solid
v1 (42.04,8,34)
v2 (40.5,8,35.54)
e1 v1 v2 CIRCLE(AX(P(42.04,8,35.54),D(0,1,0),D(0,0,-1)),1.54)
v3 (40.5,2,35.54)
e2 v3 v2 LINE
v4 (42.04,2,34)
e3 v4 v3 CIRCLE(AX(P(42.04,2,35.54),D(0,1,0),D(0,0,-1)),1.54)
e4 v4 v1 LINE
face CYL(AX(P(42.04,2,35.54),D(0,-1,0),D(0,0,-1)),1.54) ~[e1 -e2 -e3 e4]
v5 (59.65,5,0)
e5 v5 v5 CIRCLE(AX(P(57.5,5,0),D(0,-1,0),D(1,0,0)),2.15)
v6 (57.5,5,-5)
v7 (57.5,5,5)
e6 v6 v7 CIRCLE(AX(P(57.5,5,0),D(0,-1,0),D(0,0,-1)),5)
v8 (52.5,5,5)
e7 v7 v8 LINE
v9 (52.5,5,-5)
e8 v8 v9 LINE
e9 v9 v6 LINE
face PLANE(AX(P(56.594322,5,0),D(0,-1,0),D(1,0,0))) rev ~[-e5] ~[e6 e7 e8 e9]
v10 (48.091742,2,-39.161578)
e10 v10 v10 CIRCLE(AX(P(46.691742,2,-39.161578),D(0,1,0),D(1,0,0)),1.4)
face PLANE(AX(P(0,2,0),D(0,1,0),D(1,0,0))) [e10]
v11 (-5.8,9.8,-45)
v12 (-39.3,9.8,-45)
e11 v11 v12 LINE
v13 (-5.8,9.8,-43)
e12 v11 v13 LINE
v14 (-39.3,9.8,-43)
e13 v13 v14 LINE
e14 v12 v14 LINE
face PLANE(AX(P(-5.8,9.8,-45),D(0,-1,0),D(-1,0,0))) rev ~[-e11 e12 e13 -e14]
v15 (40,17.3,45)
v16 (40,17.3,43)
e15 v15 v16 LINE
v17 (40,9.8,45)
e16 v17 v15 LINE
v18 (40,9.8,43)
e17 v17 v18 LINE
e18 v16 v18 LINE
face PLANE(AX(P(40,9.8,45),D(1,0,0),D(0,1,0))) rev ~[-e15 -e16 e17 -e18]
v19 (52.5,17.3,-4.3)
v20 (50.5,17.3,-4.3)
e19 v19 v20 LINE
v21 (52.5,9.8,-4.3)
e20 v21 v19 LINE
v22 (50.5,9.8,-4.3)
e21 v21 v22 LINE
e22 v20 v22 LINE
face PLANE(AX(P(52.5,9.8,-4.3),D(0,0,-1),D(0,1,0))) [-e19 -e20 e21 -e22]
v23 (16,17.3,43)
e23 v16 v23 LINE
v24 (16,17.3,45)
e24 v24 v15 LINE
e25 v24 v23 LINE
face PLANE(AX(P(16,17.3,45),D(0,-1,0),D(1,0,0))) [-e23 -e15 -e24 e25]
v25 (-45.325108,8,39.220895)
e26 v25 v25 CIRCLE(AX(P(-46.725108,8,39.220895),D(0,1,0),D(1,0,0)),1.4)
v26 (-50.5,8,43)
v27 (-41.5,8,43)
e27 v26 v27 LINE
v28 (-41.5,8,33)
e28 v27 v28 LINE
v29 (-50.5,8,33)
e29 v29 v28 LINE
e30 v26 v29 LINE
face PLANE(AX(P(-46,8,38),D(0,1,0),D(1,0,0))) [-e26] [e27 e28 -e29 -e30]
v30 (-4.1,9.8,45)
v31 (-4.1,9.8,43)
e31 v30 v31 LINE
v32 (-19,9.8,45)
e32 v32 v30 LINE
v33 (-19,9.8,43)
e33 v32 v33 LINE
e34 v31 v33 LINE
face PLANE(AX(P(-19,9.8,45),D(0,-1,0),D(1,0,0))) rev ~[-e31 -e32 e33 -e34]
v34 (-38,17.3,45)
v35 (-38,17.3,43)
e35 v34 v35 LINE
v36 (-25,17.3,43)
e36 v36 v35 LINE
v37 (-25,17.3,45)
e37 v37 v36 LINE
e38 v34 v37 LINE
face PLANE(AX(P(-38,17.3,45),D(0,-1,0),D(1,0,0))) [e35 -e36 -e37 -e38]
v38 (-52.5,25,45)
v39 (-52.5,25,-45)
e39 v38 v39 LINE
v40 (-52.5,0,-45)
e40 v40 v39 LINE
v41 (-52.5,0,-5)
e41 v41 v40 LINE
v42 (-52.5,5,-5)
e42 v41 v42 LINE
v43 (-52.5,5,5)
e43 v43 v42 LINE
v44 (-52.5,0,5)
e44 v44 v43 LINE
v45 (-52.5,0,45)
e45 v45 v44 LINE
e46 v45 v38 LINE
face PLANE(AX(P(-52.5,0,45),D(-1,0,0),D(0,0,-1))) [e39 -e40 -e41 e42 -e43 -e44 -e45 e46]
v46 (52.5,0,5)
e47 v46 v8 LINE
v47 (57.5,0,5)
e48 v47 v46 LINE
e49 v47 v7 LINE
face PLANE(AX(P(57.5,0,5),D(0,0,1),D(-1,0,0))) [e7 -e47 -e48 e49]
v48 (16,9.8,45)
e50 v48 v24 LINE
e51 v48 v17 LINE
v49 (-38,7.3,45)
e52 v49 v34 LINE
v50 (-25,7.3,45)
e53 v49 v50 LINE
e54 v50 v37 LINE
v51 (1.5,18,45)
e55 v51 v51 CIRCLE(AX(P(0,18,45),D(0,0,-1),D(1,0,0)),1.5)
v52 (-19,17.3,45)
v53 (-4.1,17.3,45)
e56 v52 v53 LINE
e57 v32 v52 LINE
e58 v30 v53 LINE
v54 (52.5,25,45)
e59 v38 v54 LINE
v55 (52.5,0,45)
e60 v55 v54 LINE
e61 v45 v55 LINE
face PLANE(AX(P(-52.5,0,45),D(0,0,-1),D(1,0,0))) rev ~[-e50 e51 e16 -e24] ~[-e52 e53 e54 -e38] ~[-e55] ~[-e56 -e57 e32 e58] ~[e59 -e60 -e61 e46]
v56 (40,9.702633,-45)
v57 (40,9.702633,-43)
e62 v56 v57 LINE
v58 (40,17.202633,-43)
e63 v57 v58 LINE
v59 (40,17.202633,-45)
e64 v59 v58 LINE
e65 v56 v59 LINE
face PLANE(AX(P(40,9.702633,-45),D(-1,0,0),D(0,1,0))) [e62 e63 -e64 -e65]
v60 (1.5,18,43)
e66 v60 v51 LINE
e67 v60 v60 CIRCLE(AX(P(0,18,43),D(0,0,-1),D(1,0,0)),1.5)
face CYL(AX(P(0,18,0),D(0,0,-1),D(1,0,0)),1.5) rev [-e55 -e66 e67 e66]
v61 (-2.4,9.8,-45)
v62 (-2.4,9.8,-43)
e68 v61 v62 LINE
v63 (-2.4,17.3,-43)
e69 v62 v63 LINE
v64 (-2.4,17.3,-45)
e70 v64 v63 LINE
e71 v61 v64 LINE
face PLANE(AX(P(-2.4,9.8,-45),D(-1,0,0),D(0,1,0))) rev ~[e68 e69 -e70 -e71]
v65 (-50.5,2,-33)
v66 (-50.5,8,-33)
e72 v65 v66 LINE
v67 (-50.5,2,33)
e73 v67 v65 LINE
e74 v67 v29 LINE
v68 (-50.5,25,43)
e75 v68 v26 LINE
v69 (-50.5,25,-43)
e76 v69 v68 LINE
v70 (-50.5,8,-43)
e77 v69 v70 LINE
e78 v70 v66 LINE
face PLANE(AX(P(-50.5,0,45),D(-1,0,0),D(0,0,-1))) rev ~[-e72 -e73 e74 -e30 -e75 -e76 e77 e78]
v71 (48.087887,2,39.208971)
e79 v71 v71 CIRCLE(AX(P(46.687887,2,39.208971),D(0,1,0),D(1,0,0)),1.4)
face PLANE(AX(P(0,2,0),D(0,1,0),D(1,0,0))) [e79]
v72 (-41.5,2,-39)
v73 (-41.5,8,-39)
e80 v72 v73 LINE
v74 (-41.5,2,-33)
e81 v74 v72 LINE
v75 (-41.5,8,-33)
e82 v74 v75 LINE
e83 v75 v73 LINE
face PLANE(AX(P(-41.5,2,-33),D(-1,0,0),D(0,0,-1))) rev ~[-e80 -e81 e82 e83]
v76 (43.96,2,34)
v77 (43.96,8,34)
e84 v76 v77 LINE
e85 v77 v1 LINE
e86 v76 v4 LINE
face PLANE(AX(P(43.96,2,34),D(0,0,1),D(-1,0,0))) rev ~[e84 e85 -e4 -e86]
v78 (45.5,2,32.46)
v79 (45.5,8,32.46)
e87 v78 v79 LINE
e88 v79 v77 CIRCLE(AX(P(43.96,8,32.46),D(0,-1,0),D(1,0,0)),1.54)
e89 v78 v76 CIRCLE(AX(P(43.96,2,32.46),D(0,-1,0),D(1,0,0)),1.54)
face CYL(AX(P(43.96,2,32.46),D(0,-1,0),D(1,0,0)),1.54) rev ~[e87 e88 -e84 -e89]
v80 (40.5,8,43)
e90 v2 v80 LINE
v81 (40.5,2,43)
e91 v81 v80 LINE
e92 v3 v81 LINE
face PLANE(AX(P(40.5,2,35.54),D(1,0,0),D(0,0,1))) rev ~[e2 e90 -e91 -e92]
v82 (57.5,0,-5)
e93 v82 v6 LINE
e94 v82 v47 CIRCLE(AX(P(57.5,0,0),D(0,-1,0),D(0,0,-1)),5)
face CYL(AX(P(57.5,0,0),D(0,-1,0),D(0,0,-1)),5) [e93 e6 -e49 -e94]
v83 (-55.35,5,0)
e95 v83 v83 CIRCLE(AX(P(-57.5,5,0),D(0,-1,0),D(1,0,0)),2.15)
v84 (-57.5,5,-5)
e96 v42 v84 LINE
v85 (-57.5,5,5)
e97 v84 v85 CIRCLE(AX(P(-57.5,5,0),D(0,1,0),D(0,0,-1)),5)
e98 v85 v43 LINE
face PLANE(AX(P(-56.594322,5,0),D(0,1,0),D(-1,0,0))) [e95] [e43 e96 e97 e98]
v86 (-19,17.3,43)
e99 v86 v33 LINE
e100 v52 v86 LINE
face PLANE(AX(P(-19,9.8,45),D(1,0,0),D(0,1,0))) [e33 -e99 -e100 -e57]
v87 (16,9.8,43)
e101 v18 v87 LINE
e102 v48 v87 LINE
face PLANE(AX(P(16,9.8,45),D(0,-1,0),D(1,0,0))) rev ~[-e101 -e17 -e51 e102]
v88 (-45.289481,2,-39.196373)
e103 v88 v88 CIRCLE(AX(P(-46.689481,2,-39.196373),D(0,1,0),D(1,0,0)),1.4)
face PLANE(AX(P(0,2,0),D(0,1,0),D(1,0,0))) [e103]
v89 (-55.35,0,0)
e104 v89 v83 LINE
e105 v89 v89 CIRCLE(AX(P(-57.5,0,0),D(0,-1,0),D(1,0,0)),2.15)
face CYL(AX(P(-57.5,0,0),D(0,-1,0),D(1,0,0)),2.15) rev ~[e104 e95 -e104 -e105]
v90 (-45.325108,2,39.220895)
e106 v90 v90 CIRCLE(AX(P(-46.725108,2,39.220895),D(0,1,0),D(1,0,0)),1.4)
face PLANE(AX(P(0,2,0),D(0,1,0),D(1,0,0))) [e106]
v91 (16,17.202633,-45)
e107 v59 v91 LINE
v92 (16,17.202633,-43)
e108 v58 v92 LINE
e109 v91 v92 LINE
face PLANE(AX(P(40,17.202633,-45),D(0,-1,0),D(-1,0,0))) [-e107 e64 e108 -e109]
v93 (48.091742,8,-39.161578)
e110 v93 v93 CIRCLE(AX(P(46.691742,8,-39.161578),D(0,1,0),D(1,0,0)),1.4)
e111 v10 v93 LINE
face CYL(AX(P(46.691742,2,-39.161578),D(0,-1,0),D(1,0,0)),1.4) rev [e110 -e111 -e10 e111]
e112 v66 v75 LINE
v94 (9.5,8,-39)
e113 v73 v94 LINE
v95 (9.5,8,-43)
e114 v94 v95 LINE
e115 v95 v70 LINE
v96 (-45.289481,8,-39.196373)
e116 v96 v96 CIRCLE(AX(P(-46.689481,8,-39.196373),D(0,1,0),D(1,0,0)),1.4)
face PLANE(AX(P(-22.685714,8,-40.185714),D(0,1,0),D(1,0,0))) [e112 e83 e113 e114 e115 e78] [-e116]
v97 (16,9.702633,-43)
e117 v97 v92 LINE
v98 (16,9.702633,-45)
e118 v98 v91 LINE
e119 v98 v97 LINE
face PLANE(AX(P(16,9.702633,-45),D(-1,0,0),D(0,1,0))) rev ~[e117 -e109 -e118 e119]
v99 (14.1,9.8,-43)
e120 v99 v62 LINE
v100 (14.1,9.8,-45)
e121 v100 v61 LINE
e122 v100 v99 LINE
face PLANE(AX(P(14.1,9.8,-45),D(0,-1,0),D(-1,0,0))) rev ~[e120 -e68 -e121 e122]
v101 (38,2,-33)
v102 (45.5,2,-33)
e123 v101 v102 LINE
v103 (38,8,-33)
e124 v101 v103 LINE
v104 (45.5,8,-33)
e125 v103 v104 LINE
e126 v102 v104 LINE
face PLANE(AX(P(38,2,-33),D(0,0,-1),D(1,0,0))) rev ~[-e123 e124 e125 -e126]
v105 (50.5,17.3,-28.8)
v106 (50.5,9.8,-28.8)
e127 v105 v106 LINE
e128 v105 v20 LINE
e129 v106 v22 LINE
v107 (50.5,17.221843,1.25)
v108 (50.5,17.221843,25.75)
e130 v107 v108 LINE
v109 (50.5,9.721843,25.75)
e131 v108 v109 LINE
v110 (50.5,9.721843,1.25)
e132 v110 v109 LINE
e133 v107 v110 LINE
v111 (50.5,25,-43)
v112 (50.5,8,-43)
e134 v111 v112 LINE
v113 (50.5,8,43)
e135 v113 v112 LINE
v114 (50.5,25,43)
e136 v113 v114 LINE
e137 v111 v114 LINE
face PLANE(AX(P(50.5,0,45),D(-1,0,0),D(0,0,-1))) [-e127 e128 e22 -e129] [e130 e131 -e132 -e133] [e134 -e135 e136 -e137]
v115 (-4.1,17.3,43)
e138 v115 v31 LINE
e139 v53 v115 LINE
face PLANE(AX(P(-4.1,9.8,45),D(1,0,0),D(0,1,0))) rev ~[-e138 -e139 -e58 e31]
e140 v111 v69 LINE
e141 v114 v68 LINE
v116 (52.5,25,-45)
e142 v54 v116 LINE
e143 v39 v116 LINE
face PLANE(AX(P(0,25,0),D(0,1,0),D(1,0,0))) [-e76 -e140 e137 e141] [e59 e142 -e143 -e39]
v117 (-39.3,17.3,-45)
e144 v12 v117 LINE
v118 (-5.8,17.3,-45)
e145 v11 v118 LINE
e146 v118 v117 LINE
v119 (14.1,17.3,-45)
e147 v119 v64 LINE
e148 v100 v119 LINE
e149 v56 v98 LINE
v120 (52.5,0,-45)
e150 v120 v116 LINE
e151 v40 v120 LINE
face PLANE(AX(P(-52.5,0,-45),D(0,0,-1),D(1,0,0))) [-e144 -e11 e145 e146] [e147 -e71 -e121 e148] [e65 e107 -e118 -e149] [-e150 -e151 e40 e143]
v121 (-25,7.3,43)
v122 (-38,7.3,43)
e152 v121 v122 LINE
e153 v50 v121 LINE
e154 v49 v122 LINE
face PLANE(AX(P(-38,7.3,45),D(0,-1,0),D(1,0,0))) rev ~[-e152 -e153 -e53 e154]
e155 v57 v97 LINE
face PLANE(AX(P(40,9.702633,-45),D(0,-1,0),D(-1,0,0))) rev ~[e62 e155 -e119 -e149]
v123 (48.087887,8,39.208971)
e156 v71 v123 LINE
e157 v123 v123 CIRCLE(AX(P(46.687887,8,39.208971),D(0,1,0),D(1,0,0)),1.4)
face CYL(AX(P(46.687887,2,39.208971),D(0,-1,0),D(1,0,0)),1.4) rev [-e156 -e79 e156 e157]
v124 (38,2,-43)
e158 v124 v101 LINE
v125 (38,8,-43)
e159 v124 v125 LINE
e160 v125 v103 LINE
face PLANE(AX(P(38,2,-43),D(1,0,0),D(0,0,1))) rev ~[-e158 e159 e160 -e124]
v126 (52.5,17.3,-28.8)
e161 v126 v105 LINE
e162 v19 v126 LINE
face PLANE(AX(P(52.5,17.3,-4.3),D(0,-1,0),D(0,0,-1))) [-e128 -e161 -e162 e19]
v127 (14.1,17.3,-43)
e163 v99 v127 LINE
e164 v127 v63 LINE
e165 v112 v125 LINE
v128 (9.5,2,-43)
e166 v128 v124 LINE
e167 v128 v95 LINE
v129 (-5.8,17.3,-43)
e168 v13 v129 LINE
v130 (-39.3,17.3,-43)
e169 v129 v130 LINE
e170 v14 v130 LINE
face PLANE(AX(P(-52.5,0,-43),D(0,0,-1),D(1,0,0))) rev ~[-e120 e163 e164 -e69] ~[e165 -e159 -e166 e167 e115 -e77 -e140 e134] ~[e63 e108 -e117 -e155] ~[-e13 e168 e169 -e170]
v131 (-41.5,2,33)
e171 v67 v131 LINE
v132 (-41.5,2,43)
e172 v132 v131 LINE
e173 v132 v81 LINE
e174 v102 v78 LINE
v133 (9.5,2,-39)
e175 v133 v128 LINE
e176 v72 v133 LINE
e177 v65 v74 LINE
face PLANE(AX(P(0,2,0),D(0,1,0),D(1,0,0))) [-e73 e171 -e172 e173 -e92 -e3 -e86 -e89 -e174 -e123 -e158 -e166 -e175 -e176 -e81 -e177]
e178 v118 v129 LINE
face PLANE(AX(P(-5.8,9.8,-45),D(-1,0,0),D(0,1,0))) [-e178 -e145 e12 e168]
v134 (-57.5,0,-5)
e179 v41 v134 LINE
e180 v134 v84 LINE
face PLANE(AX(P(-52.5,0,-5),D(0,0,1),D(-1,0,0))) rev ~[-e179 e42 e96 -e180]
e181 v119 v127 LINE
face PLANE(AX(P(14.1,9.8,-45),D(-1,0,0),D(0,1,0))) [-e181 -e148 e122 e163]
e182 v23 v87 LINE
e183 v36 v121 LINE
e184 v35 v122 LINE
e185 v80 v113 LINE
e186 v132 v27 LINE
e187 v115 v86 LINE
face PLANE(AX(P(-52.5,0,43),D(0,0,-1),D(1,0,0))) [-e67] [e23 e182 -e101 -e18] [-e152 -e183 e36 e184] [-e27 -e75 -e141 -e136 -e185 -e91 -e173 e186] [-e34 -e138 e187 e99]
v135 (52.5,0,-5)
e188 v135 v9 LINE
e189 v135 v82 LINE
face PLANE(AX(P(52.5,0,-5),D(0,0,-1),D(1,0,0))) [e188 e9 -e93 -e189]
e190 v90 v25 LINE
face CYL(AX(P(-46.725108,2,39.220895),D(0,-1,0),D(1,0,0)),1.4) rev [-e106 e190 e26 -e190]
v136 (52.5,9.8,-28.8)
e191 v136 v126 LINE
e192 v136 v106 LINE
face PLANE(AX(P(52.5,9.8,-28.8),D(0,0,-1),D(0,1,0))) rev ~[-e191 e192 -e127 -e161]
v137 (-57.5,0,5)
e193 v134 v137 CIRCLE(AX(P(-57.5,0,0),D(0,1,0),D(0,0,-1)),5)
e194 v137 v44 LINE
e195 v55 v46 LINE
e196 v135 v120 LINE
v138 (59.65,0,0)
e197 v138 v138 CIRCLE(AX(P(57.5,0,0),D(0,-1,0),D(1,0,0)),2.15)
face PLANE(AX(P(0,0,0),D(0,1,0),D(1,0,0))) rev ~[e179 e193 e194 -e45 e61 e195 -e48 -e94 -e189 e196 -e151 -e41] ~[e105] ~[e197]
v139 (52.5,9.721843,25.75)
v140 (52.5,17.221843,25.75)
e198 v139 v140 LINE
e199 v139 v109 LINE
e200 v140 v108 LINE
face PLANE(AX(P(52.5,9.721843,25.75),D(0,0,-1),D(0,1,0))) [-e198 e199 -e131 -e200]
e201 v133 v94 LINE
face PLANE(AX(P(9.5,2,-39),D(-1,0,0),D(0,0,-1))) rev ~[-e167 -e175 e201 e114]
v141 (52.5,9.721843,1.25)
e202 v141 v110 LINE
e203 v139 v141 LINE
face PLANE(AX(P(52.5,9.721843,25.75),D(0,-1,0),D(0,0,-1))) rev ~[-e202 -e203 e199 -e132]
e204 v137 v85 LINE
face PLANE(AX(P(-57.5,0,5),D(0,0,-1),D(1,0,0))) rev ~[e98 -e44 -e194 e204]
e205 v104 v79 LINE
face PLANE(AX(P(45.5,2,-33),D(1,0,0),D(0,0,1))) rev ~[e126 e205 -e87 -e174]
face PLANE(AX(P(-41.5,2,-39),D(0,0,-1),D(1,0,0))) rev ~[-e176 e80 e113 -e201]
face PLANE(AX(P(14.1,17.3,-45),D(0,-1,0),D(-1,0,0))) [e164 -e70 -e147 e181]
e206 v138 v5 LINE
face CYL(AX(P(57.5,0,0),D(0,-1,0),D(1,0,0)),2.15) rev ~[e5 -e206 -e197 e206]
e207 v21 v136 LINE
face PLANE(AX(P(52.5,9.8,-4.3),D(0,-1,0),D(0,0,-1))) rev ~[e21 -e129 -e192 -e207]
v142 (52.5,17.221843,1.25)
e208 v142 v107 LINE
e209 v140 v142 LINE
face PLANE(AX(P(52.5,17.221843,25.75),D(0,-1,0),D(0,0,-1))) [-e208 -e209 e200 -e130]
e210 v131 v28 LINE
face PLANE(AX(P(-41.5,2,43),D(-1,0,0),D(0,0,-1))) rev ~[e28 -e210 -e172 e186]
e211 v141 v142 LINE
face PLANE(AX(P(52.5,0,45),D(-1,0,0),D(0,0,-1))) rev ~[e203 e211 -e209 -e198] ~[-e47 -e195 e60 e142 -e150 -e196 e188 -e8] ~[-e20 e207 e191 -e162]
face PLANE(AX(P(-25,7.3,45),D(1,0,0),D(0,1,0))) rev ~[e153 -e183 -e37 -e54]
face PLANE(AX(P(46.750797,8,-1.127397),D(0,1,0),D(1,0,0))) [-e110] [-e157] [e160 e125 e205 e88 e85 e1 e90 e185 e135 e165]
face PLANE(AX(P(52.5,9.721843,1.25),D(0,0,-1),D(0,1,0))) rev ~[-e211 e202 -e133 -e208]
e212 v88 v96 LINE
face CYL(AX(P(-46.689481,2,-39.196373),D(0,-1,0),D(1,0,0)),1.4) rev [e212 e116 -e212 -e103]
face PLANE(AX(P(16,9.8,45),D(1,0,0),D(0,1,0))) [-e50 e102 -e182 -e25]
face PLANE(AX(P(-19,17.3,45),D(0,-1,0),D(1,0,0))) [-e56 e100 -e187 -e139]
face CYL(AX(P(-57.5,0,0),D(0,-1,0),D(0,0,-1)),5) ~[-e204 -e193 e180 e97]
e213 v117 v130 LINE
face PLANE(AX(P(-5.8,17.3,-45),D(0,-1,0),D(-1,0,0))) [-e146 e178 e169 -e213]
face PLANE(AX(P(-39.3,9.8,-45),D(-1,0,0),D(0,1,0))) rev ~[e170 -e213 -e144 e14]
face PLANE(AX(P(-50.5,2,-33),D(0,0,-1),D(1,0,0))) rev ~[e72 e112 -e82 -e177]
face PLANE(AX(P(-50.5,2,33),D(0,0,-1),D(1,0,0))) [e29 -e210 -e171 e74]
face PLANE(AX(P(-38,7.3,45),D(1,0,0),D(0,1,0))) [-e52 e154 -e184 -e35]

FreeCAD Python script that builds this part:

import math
import FreeCAD as App
import Part
import Sketcher


def faces_at(feature, points):
    """Names of the faces that lie closest to the given points."""
    faces = feature.Shape.Faces
    near = lambda p: min(range(len(faces)), key=lambda i: faces[i].distToShape(Part.Vertex(*p))[0])
    return sorted({f"Face{near(p) + 1}" for p in points})

doc = App.newDocument("Part")
body = doc.addObject("PartDesign::Body", "Body")

sketch1 = doc.addObject("Sketcher::SketchObject", "Sketch")
body.addObject(sketch1)
sketch1.AttachmentSupport = (doc.XZ_Plane, [""])
sketch1.MapMode = "FlatFace"
sketch1.addGeometry([
    Part.LineSegment(App.Vector(-52.5, -45, 0), App.Vector(-52.5, 45, 0)),
    Part.LineSegment(App.Vector(-52.5, 45, 0), App.Vector(52.5, 45, 0)),
    Part.LineSegment(App.Vector(52.5, 45, 0), App.Vector(52.5, -45, 0)),
    Part.LineSegment(App.Vector(52.5, -45, 0), App.Vector(-52.5, -45, 0)),
], False)
sketch1.addConstraint([
    Sketcher.Constraint("Coincident", 0, 2, 1, 1),
    Sketcher.Constraint("Coincident", 1, 2, 2, 1),
    Sketcher.Constraint("Coincident", 2, 2, 3, 1),
    Sketcher.Constraint("Coincident", 3, 2, 0, 1),
    Sketcher.Constraint("Vertical", 0),
    Sketcher.Constraint("Horizontal", 1),
    Sketcher.Constraint("Vertical", 2),
    Sketcher.Constraint("Horizontal", 3),
    Sketcher.Constraint("Symmetric", 0, 2, 2, 2, -1, 1),
    Sketcher.Constraint("DistanceX", 1, 1, 1, 2, 105.0),
    Sketcher.Constraint("DistanceY", 0, 1, 0, 2, 90.0),
])
pad1 = doc.addObject("PartDesign::Pad", "Pad")
body.addObject(pad1)
pad1.Profile = sketch1
pad1.Length = 25
pad1.Reversed = True
doc.recompute()

thickness = doc.addObject("PartDesign::Thickness", "Thickness")
body.addObject(thickness)
thickness.Base = (pad1, faces_at(pad1, [(0, 25, 0)]))
thickness.Value = 2
thickness.Reversed = True
thickness.Join = "Intersection"

sketch2 = doc.addObject("Sketcher::SketchObject", "Sketch001")
body.addObject(sketch2)
sketch2.AttachmentSupport = (doc.XZ_Plane, [""])
sketch2.MapMode = "FlatFace"
sketch2.addGeometry([
    Part.LineSegment(App.Vector(-52.5, 5, 0), App.Vector(-57.5, 5, 0)),
    Part.ArcOfCircle(Part.Circle(App.Vector(-57.5, 0, 0), App.Vector(0, 0, 1), 5), math.radians(90), math.radians(270)),
    Part.LineSegment(App.Vector(-57.5, -5, 0), App.Vector(-52.5, -5, 0)),
    Part.LineSegment(App.Vector(-52.5, -5, 0), App.Vector(-52.5, 5, 0)),
    Part.Circle(App.Vector(-57.5, 0, 0), App.Vector(0, 0, 1), 2.15),
    Part.LineSegment(App.Vector(52.5, -5, 0), App.Vector(57.5, -5, 0)),
    Part.ArcOfCircle(Part.Circle(App.Vector(57.5, 0, 0), App.Vector(0, 0, 1), 5), math.radians(-90), math.radians(90)),
    Part.LineSegment(App.Vector(57.5, 5, 0), App.Vector(52.5, 5, 0)),
    Part.LineSegment(App.Vector(52.5, 5, 0), App.Vector(52.5, -5, 0)),
    Part.Circle(App.Vector(57.5, 0, 0), App.Vector(0, 0, 1), 2.15),
], False)
sketch2.addConstraint([
    Sketcher.Constraint("Tangent", 0, 2, 1, 1),
    Sketcher.Constraint("Tangent", 1, 2, 2, 1),
    Sketcher.Constraint("Coincident", 2, 2, 3, 1),
    Sketcher.Constraint("Coincident", 3, 2, 0, 1),
    Sketcher.Constraint("Tangent", 5, 2, 6, 1),
    Sketcher.Constraint("Tangent", 6, 2, 7, 1),
    Sketcher.Constraint("Coincident", 7, 2, 8, 1),
    Sketcher.Constraint("Coincident", 8, 2, 5, 1),
    Sketcher.Constraint("Horizontal", 0),
    Sketcher.Constraint("Horizontal", 2),
    Sketcher.Constraint("Vertical", 3),
    Sketcher.Constraint("Horizontal", 5),
    Sketcher.Constraint("Horizontal", 7),
    Sketcher.Constraint("Vertical", 8),
    Sketcher.Constraint("Coincident", 4, 3, 1, 3),
    Sketcher.Constraint("Coincident", 9, 3, 6, 3),
    Sketcher.Constraint("Equal", 1, 6),
    Sketcher.Constraint("Equal", 4, 9),
    Sketcher.Constraint("Symmetric", 1, 3, 6, 3, -1, 1),
    Sketcher.Constraint("Symmetric", 3, 2, 7, 2, -2),
    Sketcher.Constraint("Radius", 1, 5.0),
    Sketcher.Constraint("Diameter", 4, 4.3),
    Sketcher.Constraint("DistanceX", 0, 2, 0, 1, 5.0),
    Sketcher.Constraint("DistanceX", 1, 3, 6, 3, 115.0),
])
pad2 = doc.addObject("PartDesign::Pad", "Pad001")
body.addObject(pad2)
pad2.Profile = sketch2
pad2.Length = 5
pad2.Reversed = True

sketch3 = doc.addObject("Sketcher::SketchObject", "Sketch002")
body.addObject(sketch3)
sketch3.AttachmentSupport = (doc.XY_Plane, [""])
sketch3.MapMode = "FlatFace"
sketch3.AttachmentOffset = App.Placement(App.Vector(0, 0, 45), App.Rotation())
sketch3.addGeometry([
    Part.LineSegment(App.Vector(16, 17.3, 0), App.Vector(16, 9.8, 0)),
    Part.LineSegment(App.Vector(16, 9.8, 0), App.Vector(40, 9.8, 0)),
    Part.LineSegment(App.Vector(40, 9.8, 0), App.Vector(40, 17.3, 0)),
    Part.LineSegment(App.Vector(40, 17.3, 0), App.Vector(16, 17.3, 0)),
    Part.LineSegment(App.Vector(-19, 17.3, 0), App.Vector(-19, 9.8, 0)),
    Part.LineSegment(App.Vector(-19, 9.8, 0), App.Vector(-4.1, 9.8, 0)),
    Part.LineSegment(App.Vector(-4.1, 9.8, 0), App.Vector(-4.1, 17.3, 0)),
    Part.LineSegment(App.Vector(-4.1, 17.3, 0), App.Vector(-19, 17.3, 0)),
], False)
sketch3.addConstraint([
    Sketcher.Constraint("Coincident", 0, 2, 1, 1),
    Sketcher.Constraint("Coincident", 1, 2, 2, 1),
    Sketcher.Constraint("Coincident", 2, 2, 3, 1),
    Sketcher.Constraint("Coincident", 3, 2, 0, 1),
    Sketcher.Constraint("Coincident", 4, 2, 5, 1),
    Sketcher.Constraint("Coincident", 5, 2, 6, 1),
    Sketcher.Constraint("Coincident", 6, 2, 7, 1),
    Sketcher.Constraint("Coincident", 7, 2, 4, 1),
    Sketcher.Constraint("Vertical", 0),
    Sketcher.Constraint("Horizontal", 1),
    Sketcher.Constraint("Vertical", 2),
    Sketcher.Constraint("Horizontal", 3),
    Sketcher.Constraint("Vertical", 4),
    Sketcher.Constraint("Horizontal", 5),
    Sketcher.Constraint("Vertical", 6),
    Sketcher.Constraint("Horizontal", 7),
    Sketcher.Constraint("Horizontal", 1, 2, 4, 2),
    Sketcher.Constraint("Horizontal", 3, 2, 6, 2),
    Sketcher.Constraint("DistanceX", 1, 1, 1, 2, 24.0),
    Sketcher.Constraint("DistanceX", 5, 1, 5, 2, 14.9),
    Sketcher.Constraint("DistanceY", 0, 2, 0, 1, 7.5),
    Sketcher.Constraint("DistanceX", -1, 1, 0, 2, 16.0),
    Sketcher.Constraint("DistanceX", 4, 2, -1, 1, 19.0),
    Sketcher.Constraint("DistanceY", -1, 1, 0, 2, 9.8),
])
pocket1 = doc.addObject("PartDesign::Pocket", "Pocket")
body.addObject(pocket1)
pocket1.Profile = sketch3
pocket1.Length = 10

sketch4 = doc.addObject("Sketcher::SketchObject", "Sketch003")
body.addObject(sketch4)
sketch4.AttachmentSupport = (doc.YZ_Plane, [""])
sketch4.MapMode = "FlatFace"
sketch4.AttachmentOffset = App.Placement(App.Vector(0, 0, 52.5), App.Rotation())
sketch4.addGeometry([
    Part.LineSegment(App.Vector(17.3, -4.3, 0), App.Vector(9.8, -4.3, 0)),
    Part.LineSegment(App.Vector(9.8, -4.3, 0), App.Vector(9.8, -28.8, 0)),
    Part.LineSegment(App.Vector(9.8, -28.8, 0), App.Vector(17.3, -28.8, 0)),
    Part.LineSegment(App.Vector(17.3, -28.8, 0), App.Vector(17.3, -4.3, 0)),
    Part.LineSegment(App.Vector(17.221843, 25.75, 0), App.Vector(9.721843, 25.75, 0)),
    Part.LineSegment(App.Vector(9.721843, 25.75, 0), App.Vector(9.721843, 1.25, 0)),
    Part.LineSegment(App.Vector(9.721843, 1.25, 0), App.Vector(17.221843, 1.25, 0)),
    Part.LineSegment(App.Vector(17.221843, 1.25, 0), App.Vector(17.221843, 25.75, 0)),
], False)
sketch4.addConstraint([
    Sketcher.Constraint("Coincident", 0, 2, 1, 1),
    Sketcher.Constraint("Coincident", 1, 2, 2, 1),
    Sketcher.Constraint("Coincident", 2, 2, 3, 1),
    Sketcher.Constraint("Coincident", 3, 2, 0, 1),
    Sketcher.Constraint("Coincident", 4, 2, 5, 1),
    Sketcher.Constraint("Coincident", 5, 2, 6, 1),
    Sketcher.Constraint("Coincident", 6, 2, 7, 1),
    Sketcher.Constraint("Coincident", 7, 2, 4, 1),
    Sketcher.Constraint("Horizontal", 0),
    Sketcher.Constraint("Vertical", 1),
    Sketcher.Constraint("Horizontal", 2),
    Sketcher.Constraint("Vertical", 3),
    Sketcher.Constraint("Horizontal", 4),
    Sketcher.Constraint("Vertical", 5),
    Sketcher.Constraint("Horizontal", 6),
    Sketcher.Constraint("Vertical", 7),
    Sketcher.Constraint("Equal", 2, 4),
    Sketcher.Constraint("Equal", 3, 5),
    Sketcher.Constraint("DistanceX", 0, 2, 0, 1, 7.5),
    Sketcher.Constraint("DistanceY", 1, 2, 1, 1, 24.5),
    Sketcher.Constraint("DistanceX", -1, 1, 0, 2, 9.8),
    Sketcher.Constraint("DistanceY", 0, 2, -1, 1, 4.3),
    Sketcher.Constraint("DistanceY", -1, 1, 4, 2, 25.75),
    Sketcher.Constraint("DistanceX", -1, 1, 4, 2, 9.721843),
])
pocket2 = doc.addObject("PartDesign::Pocket", "Pocket001")
body.addObject(pocket2)
pocket2.Profile = sketch4
pocket2.Length = 10

sketch5 = doc.addObject("Sketcher::SketchObject", "Sketch004")
body.addObject(sketch5)
sketch5.AttachmentSupport = (doc.XY_Plane, [""])
sketch5.MapMode = "FlatFace"
sketch5.AttachmentOffset = App.Placement(App.Vector(0, 0, -45), App.Rotation())
sketch5.addGeometry([
    Part.LineSegment(App.Vector(-5.8, 17.3, 0), App.Vector(-5.8, 9.8, 0)),
    Part.LineSegment(App.Vector(-5.8, 9.8, 0), App.Vector(-39.3, 9.8, 0)),
    Part.LineSegment(App.Vector(-39.3, 9.8, 0), App.Vector(-39.3, 17.3, 0)),
    Part.LineSegment(App.Vector(-39.3, 17.3, 0), App.Vector(-5.8, 17.3, 0)),
    Part.LineSegment(App.Vector(14.1, 17.3, 0), App.Vector(14.1, 9.8, 0)),
    Part.LineSegment(App.Vector(14.1, 9.8, 0), App.Vector(-2.4, 9.8, 0)),
    Part.LineSegment(App.Vector(-2.4, 9.8, 0), App.Vector(-2.4, 17.3, 0)),
    Part.LineSegment(App.Vector(-2.4, 17.3, 0), App.Vector(14.1, 17.3, 0)),
    Part.LineSegment(App.Vector(40, 17.202633, 0), App.Vector(40, 9.702633, 0)),
    Part.LineSegment(App.Vector(40, 9.702633, 0), App.Vector(16, 9.702633, 0)),
    Part.LineSegment(App.Vector(16, 9.702633, 0), App.Vector(16, 17.202633, 0)),
    Part.LineSegment(App.Vector(16, 17.202633, 0), App.Vector(40, 17.202633, 0)),
], False)
sketch5.addConstraint([
    Sketcher.Constraint("Coincident", 0, 2, 1, 1),
    Sketcher.Constraint("Coincident", 1, 2, 2, 1),
    Sketcher.Constraint("Coincident", 2, 2, 3, 1),
    Sketcher.Constraint("Coincident", 3, 2, 0, 1),
    Sketcher.Constraint("Coincident", 4, 2, 5, 1),
    Sketcher.Constraint("Coincident", 5, 2, 6, 1),
    Sketcher.Constraint("Coincident", 6, 2, 7, 1),
    Sketcher.Constraint("Coincident", 7, 2, 4, 1),
    Sketcher.Constraint("Coincident", 8, 2, 9, 1),
    Sketcher.Constraint("Coincident", 9, 2, 10, 1),
    Sketcher.Constraint("Coincident", 10, 2, 11, 1),
    Sketcher.Constraint("Coincident", 11, 2, 8, 1),
    Sketcher.Constraint("Vertical", 0),
    Sketcher.Constraint("Horizontal", 1),
    Sketcher.Constraint("Vertical", 2),
    Sketcher.Constraint("Horizontal", 3),
    Sketcher.Constraint("Vertical", 4),
    Sketcher.Constraint("Horizontal", 5),
    Sketcher.Constraint("Vertical", 6),
    Sketcher.Constraint("Horizontal", 7),
    Sketcher.Constraint("Vertical", 8),
    Sketcher.Constraint("Horizontal", 9),
    Sketcher.Constraint("Vertical", 10),
    Sketcher.Constraint("Horizontal", 11),
    Sketcher.Constraint("Horizontal", 1, 2, 4, 2),
    Sketcher.Constraint("Horizontal", 3, 2, 6, 2),
    Sketcher.Constraint("Equal", 6, 8),
    Sketcher.Constraint("DistanceX", 9, 2, 9, 1, 24.0),
    Sketcher.Constraint("DistanceX", 1, 2, 1, 1, 33.5),
    Sketcher.Constraint("DistanceX", 5, 2, 5, 1, 16.5),
    Sketcher.Constraint("DistanceY", 0, 2, 0, 1, 7.5),
    Sketcher.Constraint("DistanceX", -1, 1, 8, 2, 40.0),
    Sketcher.Constraint("DistanceX", 0, 2, -1, 1, 5.8),
    Sketcher.Constraint("DistanceY", -1, 1, 0, 2, 9.8),
    Sketcher.Constraint("DistanceX", -1, 1, 4, 2, 14.1),
    Sketcher.Constraint("DistanceY", -1, 1, 8, 2, 9.702633),
])
pocket3 = doc.addObject("PartDesign::Pocket", "Pocket002")
body.addObject(pocket3)
pocket3.Profile = sketch5
pocket3.Length = 10
pocket3.Reversed = True

sketch6 = doc.addObject("Sketcher::SketchObject", "Sketch005")
body.addObject(sketch6)
sketch6.AttachmentSupport = (doc.XY_Plane, [""])
sketch6.MapMode = "FlatFace"
sketch6.addGeometry(Part.Circle(App.Vector(0, 18, 0), App.Vector(0, 0, 1), 1.5), False)
sketch6.addConstraint([
    Sketcher.Constraint("PointOnObject", 0, 3, -2),
    Sketcher.Constraint("Diameter", 0, 3.0),
    Sketcher.Constraint("DistanceY", -1, 1, 0, 3, 18.0),
])
pocket4 = doc.addObject("PartDesign::Pocket", "Pocket003")
body.addObject(pocket4)
pocket4.Profile = sketch6
pocket4.Length = 50
pocket4.Reversed = True

sketch7 = doc.addObject("Sketcher::SketchObject", "Sketch006")
body.addObject(sketch7)
sketch7.AttachmentSupport = (doc.XZ_Plane, [""])
sketch7.MapMode = "FlatFace"
sketch7.AttachmentOffset = App.Placement(App.Vector(0, 0, -2), App.Rotation())
sketch7.addGeometry([
    Part.LineSegment(App.Vector(-41.5, -33, 0), App.Vector(-41.5, -39, 0)),
    Part.LineSegment(App.Vector(-41.5, -39, 0), App.Vector(9.5, -39, 0)),
    Part.LineSegment(App.Vector(9.5, -39, 0), App.Vector(9.5, -43, 0)),
    Part.LineSegment(App.Vector(9.5, -43, 0), App.Vector(-50.5, -43, 0)),
    Part.LineSegment(App.Vector(-50.5, -43, 0), App.Vector(-50.5, -33, 0)),
    Part.LineSegment(App.Vector(-50.5, -33, 0), App.Vector(-41.5, -33, 0)),
    Part.Circle(App.Vector(-46.689481, -39.196373, 0), App.Vector(0, 0, 1), 1.4),
    Part.LineSegment(App.Vector(38, -43, 0), App.Vector(38, -33, 0)),
    Part.LineSegment(App.Vector(38, -33, 0), App.Vector(45.5, -33, 0)),
    Part.LineSegment(App.Vector(45.5, -33, 0), App.Vector(45.5, 32.46, 0)),
    Part.ArcOfCircle(Part.Circle(App.Vector(43.96, 32.46, 0), App.Vector(0, 0, 1), 1.54), math.radians(0), math.radians(90)),
    Part.LineSegment(App.Vector(43.96, 34, 0), App.Vector(42.04, 34, 0)),
    Part.ArcOfCircle(Part.Circle(App.Vector(42.04, 35.54, 0), App.Vector(0, 0, 1), 1.54), math.radians(180), math.radians(270)),
    Part.LineSegment(App.Vector(40.5, 35.54, 0), App.Vector(40.5, 43, 0)),
    Part.LineSegment(App.Vector(40.5, 43, 0), App.Vector(50.5, 43, 0)),
    Part.LineSegment(App.Vector(50.5, 43, 0), App.Vector(50.5, -43, 0)),
    Part.LineSegment(App.Vector(50.5, -43, 0), App.Vector(38, -43, 0)),
    Part.Circle(App.Vector(46.687887, 39.208971, 0), App.Vector(0, 0, 1), 1.4),
    Part.Circle(App.Vector(46.691742, -39.161578, 0), App.Vector(0, 0, 1), 1.4),
    Part.LineSegment(App.Vector(-50.5, 33, 0), App.Vector(-50.5, 43, 0)),
    Part.LineSegment(App.Vector(-50.5, 43, 0), App.Vector(-41.5, 43, 0)),
    Part.LineSegment(App.Vector(-41.5, 43, 0), App.Vector(-41.5, 33, 0)),
    Part.LineSegment(App.Vector(-41.5, 33, 0), App.Vector(-50.5, 33, 0)),
    Part.Circle(App.Vector(-46.725108, 39.220895, 0), App.Vector(0, 0, 1), 1.4),
], False)
sketch7.addConstraint([
    Sketcher.Constraint("Coincident", 0, 2, 1, 1),
    Sketcher.Constraint("Coincident", 1, 2, 2, 1),
    Sketcher.Constraint("Coincident", 2, 2, 3, 1),
    Sketcher.Constraint("Coincident", 3, 2, 4, 1),
    Sketcher.Constraint("Coincident", 4, 2, 5, 1),
    Sketcher.Constraint("Coincident", 5, 2, 0, 1),
    Sketcher.Constraint("Coincident", 7, 2, 8, 1),
    Sketcher.Constraint("Coincident", 8, 2, 9, 1),
    Sketcher.Constraint("Tangent", 9, 2, 10, 1),
    Sketcher.Constraint("Tangent", 10, 2, 11, 1),
    Sketcher.Constraint("Tangent", 11, 2, 12, 2),
    Sketcher.Constraint("Tangent", 12, 1, 13, 1),
    Sketcher.Constraint("Coincident", 13, 2, 14, 1),
    Sketcher.Constraint("Coincident", 14, 2, 15, 1),
    Sketcher.Constraint("Coincident", 15, 2, 16, 1),
    Sketcher.Constraint("Coincident", 16, 2, 7, 1),
    Sketcher.Constraint("Coincident", 19, 2, 20, 1),
    Sketcher.Constraint("Coincident", 20, 2, 21, 1),
    Sketcher.Constraint("Coincident", 21, 2, 22, 1),
    Sketcher.Constraint("Coincident", 22, 2, 19, 1),
    Sketcher.Constraint("Vertical", 0),
    Sketcher.Constraint("Horizontal", 1),
    Sketcher.Constraint("Vertical", 2),
    Sketcher.Constraint("Horizontal", 3),
    Sketcher.Constraint("Vertical", 4),
    Sketcher.Constraint("Horizontal", 5),
    Sketcher.Constraint("Vertical", 7),
    Sketcher.Constraint("Horizontal", 8),
    Sketcher.Constraint("Vertical", 9),
    Sketcher.Constraint("Horizontal", 11),
    Sketcher.Constraint("Vertical", 13),
    Sketcher.Constraint("Horizontal", 14),
    Sketcher.Constraint("Vertical", 15),
    Sketcher.Constraint("Horizontal", 16),
    Sketcher.Constraint("Vertical", 19),
    Sketcher.Constraint("Horizontal", 20),
    Sketcher.Constraint("Vertical", 21),
    Sketcher.Constraint("Horizontal", 22),
    Sketcher.Constraint("Equal", 10, 12),
    Sketcher.Constraint("Equal", 6, 17),
    Sketcher.Constraint("Equal", 17, 18),
    Sketcher.Constraint("Equal", 18, 23),
    Sketcher.Constraint("Symmetric", 3, 2, 14, 2, -1, 1),
    Sketcher.Constraint("Symmetric", 15, 2, 19, 2, -1, 1),
    Sketcher.Constraint("Symmetric", 5, 2, 21, 2, -1),
    Sketcher.Constraint("Horizontal", 5, 2, 7, 2),
    Sketcher.Constraint("Horizontal", 3, 2, 15, 2),
    Sketcher.Constraint("Equal", 14, 4),
    Sketcher.Constraint("Diameter", 6, 2.8),
    Sketcher.Constraint("DistanceX", 1, 1, 1, 2, 51.0),
    Sketcher.Constraint("DistanceX", 3, 2, 3, 1, 60.0),
    Sketcher.Constraint("DistanceX", 14, 1, 14, 2, 10.0),
    Sketcher.Constraint("DistanceY", 0, 2, 0, 1, 6.0),
    Sketcher.Constraint("DistanceY", 15, 2, 15, 1, 86.0),
    Sketcher.Constraint("Radius", 10, 1.54),
    Sketcher.Constraint("DistanceX", 8, 1, 8, 2, 7.5),
    Sketcher.Constraint("DistanceX", 16, 2, 16, 1, 12.5),
    Sketcher.Constraint("DistanceX", -1, 1, 7, 2, 38.0),
    Sketcher.Constraint("DistanceY", -1, 1, 10, 2, 34.0),
    Sketcher.Constraint("DistanceX", 6, 3, -1, 1, 46.689481),
    Sketcher.Constraint("DistanceY", -1, 1, 17, 3, 39.208971),
    Sketcher.Constraint("DistanceX", -1, 1, 18, 3, 46.691742),
    Sketcher.Constraint("DistanceX", 23, 3, -1, 1, 46.725108),
    Sketcher.Constraint("DistanceX", 6, 3, 17, 3, 93.377368),
    Sketcher.Constraint("DistanceY", 18, 3, 17, 3, 78.370548),
    Sketcher.Constraint("DistanceY", 6, 3, -1, 1, 39.196373),
    Sketcher.Constraint("DistanceY", -1, 1, 23, 3, 39.220895),
])
pad3 = doc.addObject("PartDesign::Pad", "Pad002")
body.addObject(pad3)
pad3.Profile = sketch7
pad3.Length = 6
pad3.Reversed = True

sketch8 = doc.addObject("Sketcher::SketchObject", "Sketch007")
body.addObject(sketch8)
sketch8.AttachmentSupport = (doc.XY_Plane, [""])
sketch8.MapMode = "FlatFace"
sketch8.AttachmentOffset = App.Placement(App.Vector(0, 0, 45), App.Rotation())
sketch8.addGeometry([
    Part.LineSegment(App.Vector(16, 17.3, 0), App.Vector(16, 9.8, 0)),
    Part.LineSegment(App.Vector(16, 9.8, 0), App.Vector(40, 9.8, 0)),
    Part.LineSegment(App.Vector(40, 9.8, 0), App.Vector(40, 17.3, 0)),
    Part.LineSegment(App.Vector(40, 17.3, 0), App.Vector(16, 17.3, 0)),
    Part.LineSegment(App.Vector(-19, 17.3, 0), App.Vector(-19, 9.8, 0)),
    Part.LineSegment(App.Vector(-19, 9.8, 0), App.Vector(-4.1, 9.8, 0)),
    Part.LineSegment(App.Vector(-4.1, 9.8, 0), App.Vector(-4.1, 17.3, 0)),
    Part.LineSegment(App.Vector(-4.1, 17.3, 0), App.Vector(-19, 17.3, 0)),
    Part.LineSegment(App.Vector(-38, 17.3, 0), App.Vector(-38, 7.3, 0)),
    Part.LineSegment(App.Vector(-38, 7.3, 0), App.Vector(-25, 7.3, 0)),
    Part.LineSegment(App.Vector(-25, 7.3, 0), App.Vector(-25, 17.3, 0)),
    Part.LineSegment(App.Vector(-25, 17.3, 0), App.Vector(-38, 17.3, 0)),
], False)
sketch8.addConstraint([
    Sketcher.Constraint("Coincident", 0, 2, 1, 1),
    Sketcher.Constraint("Coincident", 1, 2, 2, 1),
    Sketcher.Constraint("Coincident", 2, 2, 3, 1),
    Sketcher.Constraint("Coincident", 3, 2, 0, 1),
    Sketcher.Constraint("Coincident", 4, 2, 5, 1),
    Sketcher.Constraint("Coincident", 5, 2, 6, 1),
    Sketcher.Constraint("Coincident", 6, 2, 7, 1),
    Sketcher.Constraint("Coincident", 7, 2, 4, 1),
    Sketcher.Constraint("Coincident", 8, 2, 9, 1),
    Sketcher.Constraint("Coincident", 9, 2, 10, 1),
    Sketcher.Constraint("Coincident", 10, 2, 11, 1),
    Sketcher.Constraint("Coincident", 11, 2, 8, 1),
    Sketcher.Constraint("Vertical", 0),
    Sketcher.Constraint("Horizontal", 1),
    Sketcher.Constraint("Vertical", 2),
    Sketcher.Constraint("Horizontal", 3),
    Sketcher.Constraint("Vertical", 4),
    Sketcher.Constraint("Horizontal", 5),
    Sketcher.Constraint("Vertical", 6),
    Sketcher.Constraint("Horizontal", 7),
    Sketcher.Constraint("Vertical", 8),
    Sketcher.Constraint("Horizontal", 9),
    Sketcher.Constraint("Vertical", 10),
    Sketcher.Constraint("Horizontal", 11),
    Sketcher.Constraint("Horizontal", 1, 2, 4, 2),
    Sketcher.Constraint("Horizontal", 3, 2, 6, 2),
    Sketcher.Constraint("Horizontal", 7, 2, 10, 2),
    Sketcher.Constraint("DistanceX", 1, 1, 1, 2, 24.0),
    Sketcher.Constraint("DistanceX", 9, 1, 9, 2, 13.0),
    Sketcher.Constraint("DistanceY", 8, 2, 8, 1, 10.0),
    Sketcher.Constraint("DistanceX", 5, 1, 5, 2, 14.9),
    Sketcher.Constraint("DistanceY", 0, 2, 0, 1, 7.5),
    Sketcher.Constraint("DistanceX", -1, 1, 0, 2, 16.0),
    Sketcher.Constraint("DistanceX", 4, 2, -1, 1, 19.0),
    Sketcher.Constraint("DistanceX", 8, 2, -1, 1, 38.0),
    Sketcher.Constraint("DistanceY", -1, 1, 0, 2, 9.8),
])
pocket5 = doc.addObject("PartDesign::Pocket", "Pocket004")
body.addObject(pocket5)
pocket5.Profile = sketch8
pocket5.Length = 10

doc.recompute()
